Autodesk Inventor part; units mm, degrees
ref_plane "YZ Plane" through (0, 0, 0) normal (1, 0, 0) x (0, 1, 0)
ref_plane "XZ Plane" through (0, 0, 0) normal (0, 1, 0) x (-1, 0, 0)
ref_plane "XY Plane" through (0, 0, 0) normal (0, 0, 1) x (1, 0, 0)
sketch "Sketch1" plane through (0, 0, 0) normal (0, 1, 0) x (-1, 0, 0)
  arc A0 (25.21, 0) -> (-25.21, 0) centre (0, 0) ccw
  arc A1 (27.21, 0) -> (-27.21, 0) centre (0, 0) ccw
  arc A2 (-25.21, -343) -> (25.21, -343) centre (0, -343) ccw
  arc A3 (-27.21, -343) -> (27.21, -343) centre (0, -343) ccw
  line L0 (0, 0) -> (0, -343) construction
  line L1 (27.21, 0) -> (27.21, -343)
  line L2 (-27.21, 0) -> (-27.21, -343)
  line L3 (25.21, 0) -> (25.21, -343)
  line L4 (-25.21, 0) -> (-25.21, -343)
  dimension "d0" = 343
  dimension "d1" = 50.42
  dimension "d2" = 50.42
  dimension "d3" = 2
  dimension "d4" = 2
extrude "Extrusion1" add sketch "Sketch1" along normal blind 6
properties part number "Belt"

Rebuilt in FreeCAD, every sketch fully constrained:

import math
import FreeCAD as App
import Part
import Sketcher
from FreeCAD import Vector
Q = App.Units.Quantity

doc = App.newDocument("Part")
body = doc.addObject("PartDesign::Body", "Body")

sketch1 = body.newObject("Sketcher::SketchObject", "Sketch")
sketch1.AttachmentSupport = (doc.getObject("XZ_Plane"), [""])
sketch1.MapMode = "FlatFace"
sketch1.addGeometry([
    Part.LineSegment(Vector(-27, -343, 0), Vector(-27, 0, 0)),
    Part.ArcOfCircle(Part.Circle(Vector(0, 0, 0), Vector(0, 0, 1), 27), math.radians(0), math.radians(180)),
    Part.LineSegment(Vector(27, 0, 0), Vector(27, -343, 0)),
    Part.ArcOfCircle(Part.Circle(Vector(0, -343, 0), Vector(0, 0, 1), 27), math.radians(180), math.radians(360)),
    Part.ArcOfCircle(Part.Circle(Vector(0, 0, 0), Vector(0, 0, 1), 25), math.radians(0), math.radians(180)),
    Part.LineSegment(Vector(-25, 0, 0), Vector(-25, -343, 0)),
    Part.ArcOfCircle(Part.Circle(Vector(0, -343, 0), Vector(0, 0, 1), 25), math.radians(180), math.radians(360)),
    Part.LineSegment(Vector(25, -343, 0), Vector(25, 0, 0)),
], False)
sketch1.addConstraint([
    Sketcher.Constraint("Tangent", 0, 2, 1, 2),
    Sketcher.Constraint("Tangent", 1, 1, 2, 1),
    Sketcher.Constraint("Tangent", 2, 2, 3, 2),
    Sketcher.Constraint("Tangent", 3, 1, 0, 1),
    Sketcher.Constraint("Tangent", 4, 2, 5, 1),
    Sketcher.Constraint("Tangent", 5, 2, 6, 1),
    Sketcher.Constraint("Tangent", 6, 2, 7, 1),
    Sketcher.Constraint("Tangent", 7, 2, 4, 1),
    Sketcher.Constraint("Vertical", 0),
    Sketcher.Constraint("Vertical", 2),
    Sketcher.Constraint("Vertical", 5),
    Sketcher.Constraint("Vertical", 7),
    Sketcher.Constraint("Coincident", 1, 3, -1, 1),
    Sketcher.Constraint("Coincident", 4, 3, -1, 1),
    Sketcher.Constraint("Horizontal", 6, 3, 2, 2),
    Sketcher.Constraint("DistanceY", 0, 1, 0, 2, Q("343 mm")),
    Sketcher.Constraint("Radius", 4, Q("25.21 mm")),
    Sketcher.Constraint("DistanceX", 0, 2, 4, 2, Q("2 mm")),
])
pad1 = body.newObject("PartDesign::Pad", "Pad")
pad1.Profile = sketch1
pad1.Length = 6
pad1.Reversed = True

doc.recompute()
